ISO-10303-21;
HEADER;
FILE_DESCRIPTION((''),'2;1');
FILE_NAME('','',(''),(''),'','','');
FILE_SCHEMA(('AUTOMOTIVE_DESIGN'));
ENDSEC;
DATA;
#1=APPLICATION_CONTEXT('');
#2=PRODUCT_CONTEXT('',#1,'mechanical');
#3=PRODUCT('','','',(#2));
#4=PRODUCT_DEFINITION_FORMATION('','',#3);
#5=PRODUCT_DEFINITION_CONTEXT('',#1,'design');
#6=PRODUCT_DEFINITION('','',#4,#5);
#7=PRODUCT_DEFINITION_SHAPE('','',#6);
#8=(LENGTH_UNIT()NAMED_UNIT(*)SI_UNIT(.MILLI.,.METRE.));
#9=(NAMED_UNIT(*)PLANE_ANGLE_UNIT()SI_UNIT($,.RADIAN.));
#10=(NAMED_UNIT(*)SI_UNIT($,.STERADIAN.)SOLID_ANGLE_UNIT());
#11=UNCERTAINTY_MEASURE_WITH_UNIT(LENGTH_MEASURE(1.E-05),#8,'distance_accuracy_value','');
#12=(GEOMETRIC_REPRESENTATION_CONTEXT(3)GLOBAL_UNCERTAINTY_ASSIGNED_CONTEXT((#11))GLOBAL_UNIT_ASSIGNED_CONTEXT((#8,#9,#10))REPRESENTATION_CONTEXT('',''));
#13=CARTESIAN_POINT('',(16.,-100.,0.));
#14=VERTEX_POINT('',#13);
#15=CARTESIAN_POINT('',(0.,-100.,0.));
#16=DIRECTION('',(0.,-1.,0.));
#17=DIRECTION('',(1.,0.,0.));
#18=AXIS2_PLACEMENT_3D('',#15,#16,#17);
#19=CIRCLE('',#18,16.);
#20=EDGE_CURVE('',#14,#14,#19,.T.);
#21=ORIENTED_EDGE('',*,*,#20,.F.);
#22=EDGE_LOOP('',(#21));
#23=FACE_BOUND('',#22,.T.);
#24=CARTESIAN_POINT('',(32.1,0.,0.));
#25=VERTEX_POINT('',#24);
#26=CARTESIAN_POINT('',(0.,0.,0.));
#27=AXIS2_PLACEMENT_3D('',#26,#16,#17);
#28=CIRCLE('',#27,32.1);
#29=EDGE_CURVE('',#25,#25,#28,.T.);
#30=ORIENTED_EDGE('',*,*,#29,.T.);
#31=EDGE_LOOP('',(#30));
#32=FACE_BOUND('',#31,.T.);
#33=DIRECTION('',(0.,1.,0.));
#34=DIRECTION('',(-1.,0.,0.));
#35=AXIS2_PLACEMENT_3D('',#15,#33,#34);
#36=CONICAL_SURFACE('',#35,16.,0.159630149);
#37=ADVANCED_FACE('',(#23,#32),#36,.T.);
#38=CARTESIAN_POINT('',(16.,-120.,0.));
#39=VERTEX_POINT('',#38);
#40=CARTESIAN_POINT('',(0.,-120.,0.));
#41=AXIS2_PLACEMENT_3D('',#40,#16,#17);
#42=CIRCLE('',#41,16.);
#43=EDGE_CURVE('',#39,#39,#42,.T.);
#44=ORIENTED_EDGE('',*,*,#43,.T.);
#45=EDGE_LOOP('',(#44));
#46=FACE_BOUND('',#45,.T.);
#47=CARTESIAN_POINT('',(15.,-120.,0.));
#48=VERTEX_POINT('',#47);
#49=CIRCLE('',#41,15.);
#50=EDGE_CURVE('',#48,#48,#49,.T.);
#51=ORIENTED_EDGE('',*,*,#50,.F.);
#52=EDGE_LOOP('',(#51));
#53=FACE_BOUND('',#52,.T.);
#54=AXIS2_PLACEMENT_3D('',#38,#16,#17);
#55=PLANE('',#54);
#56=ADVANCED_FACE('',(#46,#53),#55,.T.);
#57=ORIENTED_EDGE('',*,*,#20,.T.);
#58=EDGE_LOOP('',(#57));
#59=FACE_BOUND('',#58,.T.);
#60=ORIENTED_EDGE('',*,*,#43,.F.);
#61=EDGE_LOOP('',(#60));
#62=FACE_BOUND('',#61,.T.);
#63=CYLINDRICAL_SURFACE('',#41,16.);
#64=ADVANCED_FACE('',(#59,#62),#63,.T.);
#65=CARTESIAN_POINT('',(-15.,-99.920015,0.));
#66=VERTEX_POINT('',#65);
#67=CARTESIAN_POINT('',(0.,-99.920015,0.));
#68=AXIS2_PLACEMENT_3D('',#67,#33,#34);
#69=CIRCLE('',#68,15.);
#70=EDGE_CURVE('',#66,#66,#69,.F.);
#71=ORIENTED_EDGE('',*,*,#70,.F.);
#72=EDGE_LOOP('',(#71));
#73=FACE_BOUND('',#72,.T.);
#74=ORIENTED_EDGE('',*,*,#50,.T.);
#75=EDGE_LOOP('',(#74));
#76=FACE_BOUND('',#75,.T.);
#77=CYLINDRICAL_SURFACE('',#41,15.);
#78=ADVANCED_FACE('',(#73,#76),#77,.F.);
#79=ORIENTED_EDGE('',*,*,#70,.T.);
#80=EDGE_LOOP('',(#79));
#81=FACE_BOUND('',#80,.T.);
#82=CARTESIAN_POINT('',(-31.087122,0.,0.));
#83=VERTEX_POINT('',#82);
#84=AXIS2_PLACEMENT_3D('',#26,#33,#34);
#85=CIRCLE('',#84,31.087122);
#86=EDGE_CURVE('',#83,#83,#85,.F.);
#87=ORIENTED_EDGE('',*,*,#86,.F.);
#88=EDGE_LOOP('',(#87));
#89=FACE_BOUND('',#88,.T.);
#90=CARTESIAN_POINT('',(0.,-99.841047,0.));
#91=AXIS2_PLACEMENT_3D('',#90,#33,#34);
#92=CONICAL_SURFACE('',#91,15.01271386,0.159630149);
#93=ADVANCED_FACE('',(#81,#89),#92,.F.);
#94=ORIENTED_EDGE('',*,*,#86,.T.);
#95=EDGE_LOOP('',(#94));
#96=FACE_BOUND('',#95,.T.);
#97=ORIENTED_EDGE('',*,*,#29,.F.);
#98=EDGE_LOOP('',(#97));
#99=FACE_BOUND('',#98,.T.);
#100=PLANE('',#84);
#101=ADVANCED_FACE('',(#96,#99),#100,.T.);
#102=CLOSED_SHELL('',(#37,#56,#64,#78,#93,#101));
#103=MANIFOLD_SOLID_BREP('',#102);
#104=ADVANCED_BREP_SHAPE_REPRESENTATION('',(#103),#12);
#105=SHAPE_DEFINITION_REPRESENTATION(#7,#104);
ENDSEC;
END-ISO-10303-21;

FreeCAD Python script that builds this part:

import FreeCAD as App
import Part
import Sketcher
from FreeCAD import Vector
Q = App.Units.Quantity


def faces_at(feature, points):
    """Names of the faces that lie closest to the given points."""
    faces = feature.Shape.Faces
    near = lambda p: min(range(len(faces)), key=lambda i: faces[i].distToShape(Part.Vertex(*p))[0])
    return sorted({f"Face{near(p) + 1}" for p in points})


def add_polygon(sketch, points):
    """Adds a closed chain of lines whose ends are joined by coincident constraints."""
    first, n = sketch.GeometryCount, len(points)
    for a, b in zip(points, points[1:] + points[:1]):
        sketch.addGeometry(Part.LineSegment(App.Vector(*a, 0), App.Vector(*b, 0)), False)
    for i in range(n):
        sketch.addConstraint(Sketcher.Constraint("Coincident", first + i, 2, first + (i + 1) % n, 1))

doc = App.newDocument("Part")
params = doc.addObject("Spreadsheet::Sheet", "Params")
for row, (alias, value) in enumerate([
    ("sketch1_width", "16 mm"),
    ("sketch1_height", "120 mm"),
    ("sketch1_height2", "20 mm"),
    ("sketch1_width2", "32.1 mm"),
    ("revolution_angle", "360 deg"),
    ("thickness_wall", "1 mm"),
], start=1):
    params.set(f"A{row}", alias)
    params.set(f"B{row}", "=" + value)
    params.setAlias(f"B{row}", alias)

body = doc.addObject("PartDesign::Body", "Body")

# Sketch on XY plane
sketch1 = body.newObject("Sketcher::SketchObject", "Sketch")
sketch1.AttachmentSupport = (doc.getObject("XY_Plane"), [""])
sketch1.MapMode = "FlatFace"
add_polygon(sketch1, [(32, 0), (0, 0), (0, -120), (16, -120), (16, -100)])  # lines 0-4
sketch1.addConstraint([
    Sketcher.Constraint("Horizontal", 0),
    Sketcher.Constraint("Vertical", 1),
    Sketcher.Constraint("Horizontal", 2),
    Sketcher.Constraint("Vertical", 3),
    Sketcher.Constraint("Coincident", 0, 2, -1, 1),
    Sketcher.Constraint("DistanceX", 2, 1, 2, 2, Q("16 mm")),
    Sketcher.Constraint("DistanceY", 1, 2, 1, 1, Q("120 mm")),
    Sketcher.Constraint("DistanceY", 3, 1, 3, 2, Q("20 mm")),
    Sketcher.Constraint("DistanceX", 0, 2, 0, 1, Q("32.1 mm")),
])
sketch1.setExpression("Constraints[10]", "Params.sketch1_width")
sketch1.setExpression("Constraints[11]", "Params.sketch1_height")
sketch1.setExpression("Constraints[12]", "Params.sketch1_height2")
sketch1.setExpression("Constraints[13]", "Params.sketch1_width2")
revolution = body.newObject("PartDesign::Revolution", "Revolution")
revolution.Profile = sketch1
revolution.ReferenceAxis = (sketch1, ["V_Axis"])
revolution.setExpression("Angle", "Params.revolution_angle")
doc.recompute()

thickness = body.newObject("PartDesign::Thickness", "Thickness")
thickness.Base = (revolution, faces_at(revolution, [(0, -120, 0), (0, 0, 0)]))
thickness.setExpression("Value", "Params.thickness_wall")
thickness.Reversed = True
thickness.Join = "Intersection"

doc.recompute()
